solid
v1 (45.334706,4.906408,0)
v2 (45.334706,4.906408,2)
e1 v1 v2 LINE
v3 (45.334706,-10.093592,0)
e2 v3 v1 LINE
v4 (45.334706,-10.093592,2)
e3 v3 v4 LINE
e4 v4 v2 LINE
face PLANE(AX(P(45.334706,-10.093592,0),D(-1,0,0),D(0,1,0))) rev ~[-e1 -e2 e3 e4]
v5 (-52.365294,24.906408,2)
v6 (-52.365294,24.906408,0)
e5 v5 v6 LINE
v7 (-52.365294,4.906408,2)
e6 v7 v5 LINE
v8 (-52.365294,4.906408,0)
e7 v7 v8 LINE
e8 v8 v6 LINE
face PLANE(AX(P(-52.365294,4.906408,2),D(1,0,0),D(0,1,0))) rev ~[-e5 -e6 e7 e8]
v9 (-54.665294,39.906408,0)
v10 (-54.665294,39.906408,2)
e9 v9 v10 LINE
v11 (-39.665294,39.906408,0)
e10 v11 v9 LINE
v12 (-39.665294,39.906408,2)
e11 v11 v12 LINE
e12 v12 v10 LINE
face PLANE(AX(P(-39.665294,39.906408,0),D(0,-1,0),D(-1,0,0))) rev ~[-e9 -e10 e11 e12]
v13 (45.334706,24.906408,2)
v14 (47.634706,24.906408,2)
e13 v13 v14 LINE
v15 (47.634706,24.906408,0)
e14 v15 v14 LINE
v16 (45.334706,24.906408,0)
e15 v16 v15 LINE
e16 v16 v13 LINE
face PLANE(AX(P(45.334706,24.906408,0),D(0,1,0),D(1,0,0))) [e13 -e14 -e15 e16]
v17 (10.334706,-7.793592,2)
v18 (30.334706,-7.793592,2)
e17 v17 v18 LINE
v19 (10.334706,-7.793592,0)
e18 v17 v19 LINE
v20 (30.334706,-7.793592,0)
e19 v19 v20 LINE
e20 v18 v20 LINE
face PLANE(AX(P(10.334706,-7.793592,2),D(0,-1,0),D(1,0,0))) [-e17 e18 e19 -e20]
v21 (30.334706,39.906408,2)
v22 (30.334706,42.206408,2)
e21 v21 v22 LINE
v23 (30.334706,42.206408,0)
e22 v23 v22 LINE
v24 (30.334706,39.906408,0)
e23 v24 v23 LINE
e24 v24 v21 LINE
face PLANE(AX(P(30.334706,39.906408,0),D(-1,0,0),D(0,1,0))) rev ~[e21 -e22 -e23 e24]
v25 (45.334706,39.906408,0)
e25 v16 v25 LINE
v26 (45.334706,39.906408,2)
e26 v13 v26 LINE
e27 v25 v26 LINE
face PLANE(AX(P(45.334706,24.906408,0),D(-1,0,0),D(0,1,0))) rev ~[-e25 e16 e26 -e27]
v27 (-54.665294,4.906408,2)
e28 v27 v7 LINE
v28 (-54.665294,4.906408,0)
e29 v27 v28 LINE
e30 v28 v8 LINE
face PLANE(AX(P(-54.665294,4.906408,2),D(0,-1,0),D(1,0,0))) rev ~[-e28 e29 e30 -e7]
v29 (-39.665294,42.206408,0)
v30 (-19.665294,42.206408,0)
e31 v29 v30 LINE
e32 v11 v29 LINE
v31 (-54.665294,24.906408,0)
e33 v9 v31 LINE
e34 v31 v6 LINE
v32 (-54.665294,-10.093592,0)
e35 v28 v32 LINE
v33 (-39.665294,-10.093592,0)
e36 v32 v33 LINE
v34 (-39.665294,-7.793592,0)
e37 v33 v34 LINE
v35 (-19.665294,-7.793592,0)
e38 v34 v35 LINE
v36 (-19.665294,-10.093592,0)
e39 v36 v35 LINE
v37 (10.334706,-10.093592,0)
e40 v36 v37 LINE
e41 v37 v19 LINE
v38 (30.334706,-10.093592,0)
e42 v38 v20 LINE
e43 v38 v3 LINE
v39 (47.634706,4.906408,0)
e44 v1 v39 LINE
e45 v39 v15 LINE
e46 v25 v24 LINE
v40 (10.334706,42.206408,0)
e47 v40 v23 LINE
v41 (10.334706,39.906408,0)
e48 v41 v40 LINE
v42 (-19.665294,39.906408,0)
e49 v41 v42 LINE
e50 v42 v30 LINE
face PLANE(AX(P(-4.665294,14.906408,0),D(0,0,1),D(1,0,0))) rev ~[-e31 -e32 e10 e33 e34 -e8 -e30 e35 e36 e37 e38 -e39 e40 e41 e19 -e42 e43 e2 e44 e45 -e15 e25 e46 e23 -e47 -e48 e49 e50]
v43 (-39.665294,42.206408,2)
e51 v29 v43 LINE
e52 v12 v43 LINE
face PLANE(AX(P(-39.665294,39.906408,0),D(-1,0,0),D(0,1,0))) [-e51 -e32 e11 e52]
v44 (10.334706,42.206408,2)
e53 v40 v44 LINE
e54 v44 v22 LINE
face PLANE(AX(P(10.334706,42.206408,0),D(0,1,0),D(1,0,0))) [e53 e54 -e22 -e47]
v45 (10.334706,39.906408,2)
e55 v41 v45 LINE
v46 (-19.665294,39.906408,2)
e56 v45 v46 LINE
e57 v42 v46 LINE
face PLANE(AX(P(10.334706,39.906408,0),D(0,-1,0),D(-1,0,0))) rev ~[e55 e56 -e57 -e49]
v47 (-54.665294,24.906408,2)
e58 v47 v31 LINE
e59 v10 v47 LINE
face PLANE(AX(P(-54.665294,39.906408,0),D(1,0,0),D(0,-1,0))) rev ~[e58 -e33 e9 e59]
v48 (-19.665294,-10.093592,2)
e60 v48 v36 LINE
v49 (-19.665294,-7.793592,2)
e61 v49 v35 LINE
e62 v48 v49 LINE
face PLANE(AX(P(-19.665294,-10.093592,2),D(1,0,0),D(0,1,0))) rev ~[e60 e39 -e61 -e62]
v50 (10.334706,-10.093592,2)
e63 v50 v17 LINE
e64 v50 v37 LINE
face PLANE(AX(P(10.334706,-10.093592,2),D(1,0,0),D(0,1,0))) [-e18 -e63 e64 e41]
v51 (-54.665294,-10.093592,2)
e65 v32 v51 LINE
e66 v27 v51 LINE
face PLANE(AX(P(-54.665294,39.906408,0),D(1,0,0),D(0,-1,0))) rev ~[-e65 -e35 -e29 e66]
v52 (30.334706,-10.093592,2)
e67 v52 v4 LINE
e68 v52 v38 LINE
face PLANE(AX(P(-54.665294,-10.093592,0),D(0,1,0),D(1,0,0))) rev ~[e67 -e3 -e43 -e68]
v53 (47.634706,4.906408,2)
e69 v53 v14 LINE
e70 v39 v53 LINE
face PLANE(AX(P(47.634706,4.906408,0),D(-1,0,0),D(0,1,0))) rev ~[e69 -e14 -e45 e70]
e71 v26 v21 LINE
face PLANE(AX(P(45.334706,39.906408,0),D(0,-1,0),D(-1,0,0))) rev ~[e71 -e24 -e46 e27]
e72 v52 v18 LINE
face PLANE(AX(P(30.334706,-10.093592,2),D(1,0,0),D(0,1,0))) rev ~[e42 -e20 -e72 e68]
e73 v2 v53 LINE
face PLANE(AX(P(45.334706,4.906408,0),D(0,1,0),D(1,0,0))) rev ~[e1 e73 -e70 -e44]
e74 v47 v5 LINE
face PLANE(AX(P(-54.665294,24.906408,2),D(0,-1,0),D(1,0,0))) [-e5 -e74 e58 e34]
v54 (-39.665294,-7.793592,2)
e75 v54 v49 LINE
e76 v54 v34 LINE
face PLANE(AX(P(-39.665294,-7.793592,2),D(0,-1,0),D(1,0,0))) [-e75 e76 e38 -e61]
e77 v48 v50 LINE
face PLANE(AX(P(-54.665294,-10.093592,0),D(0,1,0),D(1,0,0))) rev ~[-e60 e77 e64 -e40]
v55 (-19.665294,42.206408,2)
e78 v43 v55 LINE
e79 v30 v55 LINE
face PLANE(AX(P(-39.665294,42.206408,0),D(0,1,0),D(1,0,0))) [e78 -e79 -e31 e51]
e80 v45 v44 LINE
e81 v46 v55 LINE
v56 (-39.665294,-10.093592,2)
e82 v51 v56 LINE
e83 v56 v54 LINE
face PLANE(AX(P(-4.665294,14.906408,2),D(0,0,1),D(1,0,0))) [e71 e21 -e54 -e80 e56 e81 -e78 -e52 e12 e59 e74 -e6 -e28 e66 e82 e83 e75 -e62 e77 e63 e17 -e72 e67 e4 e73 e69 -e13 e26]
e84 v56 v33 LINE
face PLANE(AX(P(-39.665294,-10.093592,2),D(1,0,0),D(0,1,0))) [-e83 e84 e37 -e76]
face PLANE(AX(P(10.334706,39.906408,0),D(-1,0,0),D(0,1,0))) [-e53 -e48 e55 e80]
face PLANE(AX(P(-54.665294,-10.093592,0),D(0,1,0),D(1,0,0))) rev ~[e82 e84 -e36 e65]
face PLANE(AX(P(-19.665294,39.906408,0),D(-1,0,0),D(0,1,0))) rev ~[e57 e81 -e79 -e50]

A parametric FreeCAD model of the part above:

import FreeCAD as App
import Part
import Sketcher
from FreeCAD import Vector

doc = App.newDocument("Part")
params = doc.addObject("Spreadsheet::Sheet", "Params")
for row, (alias, value) in enumerate([
    ("sketch1_width", "100 mm"),
    ("sketch1_width2", "15 mm"),
    ("sketch1_width3", "20 mm"),
    ("sketch1_width4", "2.3 mm"),
    ("pad1_length", "2 mm"),
    ("sketch2_width", "20 mm"),
    ("sketch2_width2", "2.3 mm"),
    ("pocket1_length", "5 mm"),
], start=1):
    params.set(f"A{row}", alias)
    params.set(f"B{row}", "=" + value)
    params.setAlias(f"B{row}", alias)

body = doc.addObject("PartDesign::Body", "Body")

# Sketch on XY plane
sketch1 = body.newObject("Sketcher::SketchObject", "Sketch")
sketch1.AttachmentSupport = (doc.getObject("XY_Plane"), [""])
sketch1.MapMode = "FlatFace"
sketch1.addGeometry([
    Part.LineSegment(Vector(-54.7, 39.9, 0), Vector(-54.7, -10.1, 0)),  # 0
    Part.LineSegment(Vector(-54.7, -10.1, 0), Vector(45.3, -10.1, 0)),  # 1
    Part.LineSegment(Vector(45.3, -10.1, 0), Vector(45.3, 4.9, 0)),  # 2
    Part.LineSegment(Vector(45.3, 4.9, 0), Vector(47.6, 4.9, 0)),  # 3
    Part.LineSegment(Vector(47.6, 4.9, 0), Vector(47.6, 24.9, 0)),  # 4
    Part.LineSegment(Vector(47.6, 24.9, 0), Vector(45.3, 24.9, 0)),  # 5
    Part.LineSegment(Vector(45.3, 24.9, 0), Vector(45.3, 39.9, 0)),  # 6
    Part.LineSegment(Vector(45.3, 39.9, 0), Vector(30.3, 39.9, 0)),  # 7
    Part.LineSegment(Vector(30.3, 39.9, 0), Vector(30.3, 42.2, 0)),  # 8
    Part.LineSegment(Vector(30.3, 42.2, 0), Vector(10.3, 42.2, 0)),  # 9
    Part.LineSegment(Vector(10.3, 42.2, 0), Vector(10.3, 39.9, 0)),  # 10
    Part.LineSegment(Vector(10.3, 39.9, 0), Vector(-19.7, 39.9, 0)),  # 11
    Part.LineSegment(Vector(-19.7, 39.9, 0), Vector(-19.7, 42.2, 0)),  # 12
    Part.LineSegment(Vector(-19.7, 42.2, 0), Vector(-39.7, 42.2, 0)),  # 13
    Part.LineSegment(Vector(-39.7, 42.2, 0), Vector(-39.7, 39.9, 0)),  # 14
    Part.LineSegment(Vector(-39.7, 39.9, 0), Vector(-54.7, 39.9, 0)),  # 15
], False)
sketch1.addConstraint([
    Sketcher.Constraint("Coincident", 0, 2, 1, 1),
    Sketcher.Constraint("Coincident", 1, 2, 2, 1),
    Sketcher.Constraint("Coincident", 2, 2, 3, 1),
    Sketcher.Constraint("Coincident", 3, 2, 4, 1),
    Sketcher.Constraint("Coincident", 4, 2, 5, 1),
    Sketcher.Constraint("Coincident", 5, 2, 6, 1),
    Sketcher.Constraint("Coincident", 6, 2, 7, 1),
    Sketcher.Constraint("Coincident", 7, 2, 8, 1),
    Sketcher.Constraint("Coincident", 8, 2, 9, 1),
    Sketcher.Constraint("Coincident", 9, 2, 10, 1),
    Sketcher.Constraint("Coincident", 10, 2, 11, 1),
    Sketcher.Constraint("Coincident", 11, 2, 12, 1),
    Sketcher.Constraint("Coincident", 12, 2, 13, 1),
    Sketcher.Constraint("Coincident", 13, 2, 14, 1),
    Sketcher.Constraint("Coincident", 14, 2, 15, 1),
    Sketcher.Constraint("Coincident", 15, 2, 0, 1),
    Sketcher.Constraint("Vertical", 0),
    Sketcher.Constraint("Horizontal", 1),
    Sketcher.Constraint("Vertical", 2),
    Sketcher.Constraint("Horizontal", 3),
    Sketcher.Constraint("Vertical", 4),
    Sketcher.Constraint("Horizontal", 5),
    Sketcher.Constraint("Vertical", 6),
    Sketcher.Constraint("Horizontal", 7),
    Sketcher.Constraint("Vertical", 8),
    Sketcher.Constraint("Horizontal", 9),
    Sketcher.Constraint("Vertical", 10),
    Sketcher.Constraint("Horizontal", 11),
    Sketcher.Constraint("Vertical", 12),
    Sketcher.Constraint("Horizontal", 13),
    Sketcher.Constraint("Vertical", 14),
    Sketcher.Constraint("Horizontal", 15),
    Sketcher.Constraint("Horizontal", 7, 2, 10, 2),
    Sketcher.Constraint("Horizontal", 9, 2, 12, 2),
    Sketcher.Constraint("Horizontal", 11, 2, 14, 2),
    Sketcher.Constraint("Vertical", 2, 2, 5, 2),
    Sketcher.Constraint("Equal", 9, 13),
    Sketcher.Constraint("Equal", 7, 15),
    Sketcher.Constraint("Equal", 15, 2),
    Sketcher.Constraint("Equal", 13, 4),
    Sketcher.Constraint("Equal", 2, 6),
    Sketcher.Constraint("Equal", 5, 8),
    Sketcher.Constraint("DistanceX", 1, 1, 1, 2, 100.0),
    Sketcher.Constraint("DistanceX", 7, 2, 7, 1, 15.0),
    Sketcher.Constraint("DistanceX", 9, 2, 9, 1, 20.0),
    Sketcher.Constraint("DistanceX", 3, 1, 3, 2, 2.3),
    Sketcher.Constraint("DistanceY", 0, 2, -1, 1, 10.093592),
    Sketcher.Constraint("DistanceX", 0, 2, -1, 1, 54.665294),
])
sketch1.setExpression("Constraints[42]", "Params.sketch1_width")
sketch1.setExpression("Constraints[43]", "Params.sketch1_width2")
sketch1.setExpression("Constraints[44]", "Params.sketch1_width3")
sketch1.setExpression("Constraints[45]", "Params.sketch1_width4")
pad1 = body.newObject("PartDesign::Pad", "Pad")
pad1.Profile = sketch1
pad1.setExpression("Length", "Params.pad1_length")

# Sketch on XY plane
sketch2 = body.newObject("Sketcher::SketchObject", "Sketch001")
sketch2.AttachmentSupport = (doc.getObject("XY_Plane"), [""])
sketch2.MapMode = "FlatFace"
sketch2.AttachmentOffset = App.Placement(Vector(0, 0, 2), App.Rotation())
sketch2.addGeometry([
    Part.LineSegment(Vector(-39.7, -7.8, 0), Vector(-39.7, -10.1, 0)),  # 0
    Part.LineSegment(Vector(-39.7, -10.1, 0), Vector(-19.7, -10.1, 0)),  # 1
    Part.LineSegment(Vector(-19.7, -10.1, 0), Vector(-19.7, -7.8, 0)),  # 2
    Part.LineSegment(Vector(-19.7, -7.8, 0), Vector(-39.7, -7.8, 0)),  # 3
    Part.LineSegment(Vector(10.3, -7.8, 0), Vector(10.3, -10.1, 0)),  # 4
    Part.LineSegment(Vector(10.3, -10.1, 0), Vector(30.3, -10.1, 0)),  # 5
    Part.LineSegment(Vector(30.3, -10.1, 0), Vector(30.3, -7.8, 0)),  # 6
    Part.LineSegment(Vector(30.3, -7.8, 0), Vector(10.3, -7.8, 0)),  # 7
    Part.LineSegment(Vector(-54.7, 24.9, 0), Vector(-54.7, 4.9, 0)),  # 8
    Part.LineSegment(Vector(-54.7, 4.9, 0), Vector(-52.4, 4.9, 0)),  # 9
    Part.LineSegment(Vector(-52.4, 4.9, 0), Vector(-52.4, 24.9, 0)),  # 10
    Part.LineSegment(Vector(-52.4, 24.9, 0), Vector(-54.7, 24.9, 0)),  # 11
], False)
sketch2.addConstraint([
    Sketcher.Constraint("Coincident", 0, 2, 1, 1),
    Sketcher.Constraint("Coincident", 1, 2, 2, 1),
    Sketcher.Constraint("Coincident", 2, 2, 3, 1),
    Sketcher.Constraint("Coincident", 3, 2, 0, 1),
    Sketcher.Constraint("Coincident", 4, 2, 5, 1),
    Sketcher.Constraint("Coincident", 5, 2, 6, 1),
    Sketcher.Constraint("Coincident", 6, 2, 7, 1),
    Sketcher.Constraint("Coincident", 7, 2, 4, 1),
    Sketcher.Constraint("Coincident", 8, 2, 9, 1),
    Sketcher.Constraint("Coincident", 9, 2, 10, 1),
    Sketcher.Constraint("Coincident", 10, 2, 11, 1),
    Sketcher.Constraint("Coincident", 11, 2, 8, 1),
    Sketcher.Constraint("Vertical", 0),
    Sketcher.Constraint("Horizontal", 1),
    Sketcher.Constraint("Vertical", 2),
    Sketcher.Constraint("Horizontal", 3),
    Sketcher.Constraint("Vertical", 4),
    Sketcher.Constraint("Horizontal", 5),
    Sketcher.Constraint("Vertical", 6),
    Sketcher.Constraint("Horizontal", 7),
    Sketcher.Constraint("Vertical", 8),
    Sketcher.Constraint("Horizontal", 9),
    Sketcher.Constraint("Vertical", 10),
    Sketcher.Constraint("Horizontal", 11),
    Sketcher.Constraint("Horizontal", 1, 2, 4, 2),
    Sketcher.Constraint("Horizontal", 3, 2, 6, 2),
    Sketcher.Constraint("Equal", 3, 5),
    Sketcher.Constraint("Equal", 11, 0),
    Sketcher.Constraint("Equal", 7, 8),
    Sketcher.Constraint("DistanceX", 1, 1, 1, 2, 20.0),
    Sketcher.Constraint("DistanceX", 9, 1, 9, 2, 2.3),
    Sketcher.Constraint("DistanceX", 1, 2, 4, 2, 30.0),
    Sketcher.Constraint("DistanceX", 8, 2, 3, 2, 15.0),
    Sketcher.Constraint("DistanceY", 0, 2, 8, 2, 15.0),
    Sketcher.Constraint("DistanceY", 0, 2, -1, 1, 10.093592),
    Sketcher.Constraint("DistanceX", 0, 2, -1, 1, 39.665294),
])
sketch2.setExpression("Constraints[29]", "Params.sketch2_width")
sketch2.setExpression("Constraints[30]", "Params.sketch2_width2")
pocket1 = body.newObject("PartDesign::Pocket", "Pocket")
pocket1.Profile = sketch2
pocket1.setExpression("Length", "Params.pocket1_length")

doc.recompute()
